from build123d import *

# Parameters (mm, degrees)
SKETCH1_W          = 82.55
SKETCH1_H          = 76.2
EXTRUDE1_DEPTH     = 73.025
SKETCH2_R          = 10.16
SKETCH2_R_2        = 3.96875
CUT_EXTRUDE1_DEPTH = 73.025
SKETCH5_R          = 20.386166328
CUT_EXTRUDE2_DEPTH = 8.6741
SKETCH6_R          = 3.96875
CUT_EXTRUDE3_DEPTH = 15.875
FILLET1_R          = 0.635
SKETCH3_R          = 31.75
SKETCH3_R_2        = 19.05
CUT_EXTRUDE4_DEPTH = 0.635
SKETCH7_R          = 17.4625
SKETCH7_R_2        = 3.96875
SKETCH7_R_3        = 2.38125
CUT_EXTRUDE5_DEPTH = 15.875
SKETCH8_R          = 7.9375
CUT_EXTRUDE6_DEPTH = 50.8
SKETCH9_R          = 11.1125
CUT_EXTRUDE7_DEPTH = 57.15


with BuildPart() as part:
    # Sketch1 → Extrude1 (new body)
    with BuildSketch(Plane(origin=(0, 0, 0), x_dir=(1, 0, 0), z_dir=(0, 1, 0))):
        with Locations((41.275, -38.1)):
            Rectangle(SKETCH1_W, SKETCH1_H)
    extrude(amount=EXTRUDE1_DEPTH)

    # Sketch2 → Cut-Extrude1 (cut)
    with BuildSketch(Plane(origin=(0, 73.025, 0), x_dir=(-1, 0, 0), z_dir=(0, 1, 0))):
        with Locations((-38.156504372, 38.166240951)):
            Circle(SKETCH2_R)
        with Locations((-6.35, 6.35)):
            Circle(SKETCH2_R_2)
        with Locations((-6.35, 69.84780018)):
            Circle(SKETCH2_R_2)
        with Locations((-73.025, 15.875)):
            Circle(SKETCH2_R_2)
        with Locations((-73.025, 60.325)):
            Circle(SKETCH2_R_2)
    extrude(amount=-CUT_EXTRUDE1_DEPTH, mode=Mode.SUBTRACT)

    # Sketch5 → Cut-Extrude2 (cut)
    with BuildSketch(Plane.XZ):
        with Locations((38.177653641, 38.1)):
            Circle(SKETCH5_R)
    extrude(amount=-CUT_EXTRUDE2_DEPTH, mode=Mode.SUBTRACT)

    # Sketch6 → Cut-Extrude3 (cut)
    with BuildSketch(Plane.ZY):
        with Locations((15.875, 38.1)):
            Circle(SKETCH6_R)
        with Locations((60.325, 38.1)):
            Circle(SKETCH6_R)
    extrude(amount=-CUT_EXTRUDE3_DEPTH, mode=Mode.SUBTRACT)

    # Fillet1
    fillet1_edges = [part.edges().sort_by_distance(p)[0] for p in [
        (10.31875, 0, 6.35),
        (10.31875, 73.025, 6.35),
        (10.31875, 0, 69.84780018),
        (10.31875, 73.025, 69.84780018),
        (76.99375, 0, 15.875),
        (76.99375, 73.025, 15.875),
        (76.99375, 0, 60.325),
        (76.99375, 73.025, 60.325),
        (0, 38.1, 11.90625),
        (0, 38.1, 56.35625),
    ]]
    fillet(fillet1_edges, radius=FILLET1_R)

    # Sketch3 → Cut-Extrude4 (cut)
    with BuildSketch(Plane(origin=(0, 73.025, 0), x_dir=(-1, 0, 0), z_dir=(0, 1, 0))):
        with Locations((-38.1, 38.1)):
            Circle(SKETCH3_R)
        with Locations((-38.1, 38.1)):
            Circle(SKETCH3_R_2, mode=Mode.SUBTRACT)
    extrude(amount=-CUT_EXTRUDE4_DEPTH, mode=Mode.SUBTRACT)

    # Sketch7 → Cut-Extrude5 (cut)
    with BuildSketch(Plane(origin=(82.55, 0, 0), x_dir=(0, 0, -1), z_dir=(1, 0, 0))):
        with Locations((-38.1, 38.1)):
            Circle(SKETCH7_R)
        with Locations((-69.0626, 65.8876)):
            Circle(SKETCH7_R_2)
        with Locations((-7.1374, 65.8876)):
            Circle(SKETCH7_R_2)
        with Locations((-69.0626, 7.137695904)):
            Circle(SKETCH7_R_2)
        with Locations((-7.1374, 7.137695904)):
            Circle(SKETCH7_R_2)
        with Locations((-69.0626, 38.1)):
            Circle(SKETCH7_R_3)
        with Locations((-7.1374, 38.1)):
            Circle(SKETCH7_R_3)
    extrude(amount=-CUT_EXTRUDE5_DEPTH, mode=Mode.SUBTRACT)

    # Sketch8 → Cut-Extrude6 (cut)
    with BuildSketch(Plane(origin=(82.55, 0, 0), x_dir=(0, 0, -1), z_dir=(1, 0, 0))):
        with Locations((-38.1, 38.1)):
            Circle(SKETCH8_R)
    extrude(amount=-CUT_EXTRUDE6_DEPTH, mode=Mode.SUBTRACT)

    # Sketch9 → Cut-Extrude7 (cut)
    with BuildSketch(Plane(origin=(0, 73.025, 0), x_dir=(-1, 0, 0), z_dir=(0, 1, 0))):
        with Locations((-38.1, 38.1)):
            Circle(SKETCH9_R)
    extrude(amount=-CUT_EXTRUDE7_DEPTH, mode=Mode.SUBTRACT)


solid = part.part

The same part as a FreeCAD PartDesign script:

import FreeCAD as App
import Part
import Sketcher
from FreeCAD import Vector
Q = App.Units.Quantity


def edges_at(feature, points):
    """Names of the edges that pass closest to the given points."""
    edges = feature.Shape.Edges
    near = lambda p: min(range(len(edges)), key=lambda i: edges[i].distToShape(Part.Vertex(*p))[0])
    return sorted({f"Edge{near(p) + 1}" for p in points})

doc = App.newDocument("Part")
body = doc.addObject("PartDesign::Body", "Body")

sketch1 = body.newObject("Sketcher::SketchObject", "Sketch")
sketch1.AttachmentSupport = (doc.getObject("XZ_Plane"), [""])
sketch1.MapMode = "FlatFace"
sketch1.addGeometry([
    Part.LineSegment(Vector(0, 0, 0), Vector(0, 76.2, 0)),
    Part.LineSegment(Vector(0, 76.2, 0), Vector(82.55, 76.2, 0)),
    Part.LineSegment(Vector(82.55, 76.2, 0), Vector(82.55, 0, 0)),
    Part.LineSegment(Vector(82.55, 0, 0), Vector(0, 0, 0)),
], False)
sketch1.addConstraint([
    Sketcher.Constraint("Coincident", 0, 2, 1, 1),
    Sketcher.Constraint("Coincident", 1, 2, 2, 1),
    Sketcher.Constraint("Coincident", 2, 2, 3, 1),
    Sketcher.Constraint("Coincident", 3, 2, 0, 1),
    Sketcher.Constraint("Vertical", 0),
    Sketcher.Constraint("Horizontal", 1),
    Sketcher.Constraint("Vertical", 2),
    Sketcher.Constraint("Horizontal", 3),
    Sketcher.Constraint("Coincident", 3, 2, -1, 1),
    Sketcher.Constraint("DistanceY", 0, 1, 0, 2, Q("3 in")),
    Sketcher.Constraint("DistanceX", 1, 1, 1, 2, Q("3.25 in")),
])
pad1 = body.newObject("PartDesign::Pad", "Pad")
pad1.Profile = sketch1
pad1.Length = Q("2.875 in")
pad1.Reversed = True

sketch2 = body.newObject("Sketcher::SketchObject", "Sketch001")
sketch2.AttachmentSupport = (doc.getObject("XZ_Plane"), [""])
sketch2.MapMode = "FlatFace"
sketch2.AttachmentOffset = App.Placement(Vector(0, 0, -2.875 * 25.4), App.Rotation())
sketch2.addGeometry([
    Part.Circle(Vector(38.156504, 38.166241, 0), Vector(0, 0, 1), 10.16),
    Part.Circle(Vector(6.35, 6.35, 0), Vector(0, 0, 1), 3.96875),
    Part.Circle(Vector(6.35, 69.8478, 0), Vector(0, 0, 1), 3.96875),
    Part.Circle(Vector(73.025, 15.875, 0), Vector(0, 0, 1), 3.96875),
    Part.Circle(Vector(73.025, 60.325, 0), Vector(0, 0, 1), 3.96875),
], False)
sketch2.addConstraint([
    Sketcher.Constraint("Equal", 1, 2),
    Sketcher.Constraint("Equal", 2, 3),
    Sketcher.Constraint("Equal", 3, 4),
    Sketcher.Constraint("Vertical", 1, 3, 2, 3),
    Sketcher.Constraint("Vertical", 3, 3, 4, 3),
    Sketcher.Constraint("Diameter", 0, Q("0.8 in")),
    Sketcher.Constraint("Diameter", 1, Q("0.3125 in")),
    Sketcher.Constraint("DistanceX", -1, 1, 1, 3, Q("0.25 in")),
    Sketcher.Constraint("DistanceY", -1, 1, 1, 3, Q("0.25 in")),
    Sketcher.Constraint("DistanceY", 3, 3, 4, 3, Q("1.75 in")),
    Sketcher.Constraint("DistanceX", -1, 1, 3, 3, Q("2.875 in")),
    Sketcher.Constraint("DistanceY", -1, 1, 3, 3, Q("0.625 in")),
    Sketcher.Constraint("DistanceY", -1, 1, 2, 3, 69.8478),
    Sketcher.Constraint("DistanceY", -1, 1, 0, 3, 38.166241),
    Sketcher.Constraint("DistanceX", -1, 1, 0, 3, 38.156504),
])
pocket1 = body.newObject("PartDesign::Pocket", "Pocket")
pocket1.Profile = sketch2
pocket1.Length = Q("2.875 in")
pocket1.Reversed = True

sketch3 = body.newObject("Sketcher::SketchObject", "Sketch002")
sketch3.AttachmentSupport = (doc.getObject("XZ_Plane"), [""])
sketch3.MapMode = "FlatFace"
sketch3.addGeometry(Part.Circle(Vector(38.177654, 38.1, 0), Vector(0, 0, 1), 20.386166), False)
sketch3.addConstraint([
    Sketcher.Constraint("DistanceY", -1, 1, 0, 3, Q("1.5 in")),
    Sketcher.Constraint("Diameter", 0, 40.772333),
    Sketcher.Constraint("DistanceX", -1, 1, 0, 3, 38.177654),
])
pocket2 = body.newObject("PartDesign::Pocket", "Pocket001")
pocket2.Profile = sketch3
pocket2.Length = Q("0.3415 in")

sketch4 = body.newObject("Sketcher::SketchObject", "Sketch003")
sketch4.AttachmentSupport = (doc.getObject("YZ_Plane"), [""])
sketch4.MapMode = "FlatFace"
sketch4.addGeometry([
    Part.Circle(Vector(38.1, 15.875, 0), Vector(0, 0, 1), 3.96875),
    Part.Circle(Vector(38.1, 60.325, 0), Vector(0, 0, 1), 3.96875),
], False)
sketch4.addConstraint([
    Sketcher.Constraint("Equal", 0, 1),
    Sketcher.Constraint("Vertical", 0, 3, 1, 3),
    Sketcher.Constraint("Diameter", 0, Q("0.3125 in")),
    Sketcher.Constraint("DistanceX", -1, 1, 0, 3, Q("1.5 in")),
    Sketcher.Constraint("DistanceY", 0, 3, 1, 3, Q("1.75 in")),
    Sketcher.Constraint("DistanceY", -1, 1, 0, 3, Q("0.625 in")),
])
pocket3 = body.newObject("PartDesign::Pocket", "Pocket002")
pocket3.Profile = sketch4
pocket3.Length = Q("0.625 in")
pocket3.Reversed = True
doc.recompute()

fillet = body.newObject("PartDesign::Fillet", "Fillet")
fillet.Base = (pocket3, edges_at(pocket3, [
    (10.319, 0, 6.35),
    (10.319, 73.025, 6.35),
    (10.319, 0, 69.848),
    (10.319, 73.025, 69.848),
    (76.994, 0, 15.875),
    (76.994, 73.025, 15.875),
    (76.994, 0, 60.325),
    (76.994, 73.025, 60.325),
    (0, 38.1, 11.906),
    (0, 38.1, 56.356),
]))
fillet.Radius = Q("0.025 in")

sketch5 = body.newObject("Sketcher::SketchObject", "Sketch004")
sketch5.AttachmentSupport = (doc.getObject("XZ_Plane"), [""])
sketch5.MapMode = "FlatFace"
sketch5.AttachmentOffset = App.Placement(Vector(0, 0, -2.875 * 25.4), App.Rotation())
sketch5.addGeometry([
    Part.Circle(Vector(38.1, 38.1, 0), Vector(0, 0, 1), 31.75),
    Part.Circle(Vector(38.1, 38.1, 0), Vector(0, 0, 1), 19.05),
], False)
sketch5.addConstraint([
    Sketcher.Constraint("Coincident", 1, 3, 0, 3),
    Sketcher.Constraint("Diameter", 0, Q("2.5 in")),
    Sketcher.Constraint("Diameter", 1, Q("1.5 in")),
    Sketcher.Constraint("DistanceX", -1, 1, 0, 3, Q("1.5 in")),
    Sketcher.Constraint("DistanceY", -1, 1, 0, 3, Q("1.5 in")),
])
pocket4 = body.newObject("PartDesign::Pocket", "Pocket003")
pocket4.Profile = sketch5
pocket4.Length = Q("0.025 in")
pocket4.Reversed = True

sketch6 = body.newObject("Sketcher::SketchObject", "Sketch005")
sketch6.AttachmentSupport = (doc.getObject("YZ_Plane"), [""])
sketch6.MapMode = "FlatFace"
sketch6.AttachmentOffset = App.Placement(Vector(0, 0, 3.25 * 25.4), App.Rotation())
sketch6.addGeometry([
    Part.Circle(Vector(38.1, 38.1, 0), Vector(0, 0, 1), 17.4625),
    Part.Circle(Vector(65.8876, 69.0626, 0), Vector(0, 0, 1), 3.96875),
    Part.Circle(Vector(65.8876, 7.1374, 0), Vector(0, 0, 1), 3.96875),
    Part.Circle(Vector(7.137696, 69.0626, 0), Vector(0, 0, 1), 3.96875),
    Part.Circle(Vector(7.137696, 7.1374, 0), Vector(0, 0, 1), 3.96875),
    Part.Circle(Vector(38.1, 69.0626, 0), Vector(0, 0, 1), 2.38125),
    Part.Circle(Vector(38.1, 7.1374, 0), Vector(0, 0, 1), 2.38125),
], False)
sketch6.addConstraint([
    Sketcher.Constraint("Equal", 1, 2),
    Sketcher.Constraint("Equal", 2, 3),
    Sketcher.Constraint("Equal", 3, 4),
    Sketcher.Constraint("Equal", 5, 6),
    Sketcher.Constraint("Horizontal", 1, 3, 3, 3),
    Sketcher.Constraint("Horizontal", 2, 3, 4, 3),
    Sketcher.Constraint("Horizontal", 3, 3, 5, 3),
    Sketcher.Constraint("Horizontal", 4, 3, 6, 3),
    Sketcher.Constraint("Vertical", 1, 3, 2, 3),
    Sketcher.Constraint("Vertical", 3, 3, 4, 3),
    Sketcher.Constraint("Vertical", 0, 3, 5, 3),
    Sketcher.Constraint("Vertical", 5, 3, 6, 3),
    Sketcher.Constraint("Diameter", 0, Q("1.375 in")),
    Sketcher.Constraint("Diameter", 1, Q("0.3125 in")),
    Sketcher.Constraint("Diameter", 5, Q("0.1875 in")),
    Sketcher.Constraint("DistanceX", -1, 1, 0, 3, Q("1.5 in")),
    Sketcher.Constraint("DistanceY", -1, 1, 0, 3, Q("1.5 in")),
    Sketcher.Constraint("DistanceX", -1, 1, 1, 3, Q("2.594 in")),
    Sketcher.Constraint("DistanceY", -1, 1, 1, 3, Q("2.719 in")),
    Sketcher.Constraint("DistanceY", -1, 1, 2, 3, Q("0.281 in")),
    Sketcher.Constraint("DistanceX", -1, 1, 3, 3, 7.137696),
])
pocket5 = body.newObject("PartDesign::Pocket", "Pocket004")
pocket5.Profile = sketch6
pocket5.Length = Q("0.625 in")

sketch7 = body.newObject("Sketcher::SketchObject", "Sketch006")
sketch7.AttachmentSupport = (doc.getObject("YZ_Plane"), [""])
sketch7.MapMode = "FlatFace"
sketch7.AttachmentOffset = App.Placement(Vector(0, 0, 3.25 * 25.4), App.Rotation())
sketch7.addGeometry(Part.Circle(Vector(38.1, 38.1, 0), Vector(0, 0, 1), 7.9375), False)
sketch7.addConstraint([
    Sketcher.Constraint("Diameter", 0, Q("0.625 in")),
    Sketcher.Constraint("DistanceX", -1, 1, 0, 3, Q("1.5 in")),
    Sketcher.Constraint("DistanceY", -1, 1, 0, 3, Q("1.5 in")),
])
pocket6 = body.newObject("PartDesign::Pocket", "Pocket005")
pocket6.Profile = sketch7
pocket6.Length = Q("2 in")

sketch8 = body.newObject("Sketcher::SketchObject", "Sketch007")
sketch8.AttachmentSupport = (doc.getObject("XZ_Plane"), [""])
sketch8.MapMode = "FlatFace"
sketch8.AttachmentOffset = App.Placement(Vector(0, 0, -2.875 * 25.4), App.Rotation())
sketch8.addGeometry(Part.Circle(Vector(38.1, 38.1, 0), Vector(0, 0, 1), 11.1125), False)
sketch8.addConstraint([
    Sketcher.Constraint("Diameter", 0, Q("0.875 in")),
    Sketcher.Constraint("DistanceX", -1, 1, 0, 3, Q("1.5 in")),
    Sketcher.Constraint("DistanceY", -1, 1, 0, 3, Q("1.5 in")),
])
pocket7 = body.newObject("PartDesign::Pocket", "Pocket006")
pocket7.Profile = sketch8
pocket7.Length = Q("2.25 in")
pocket7.Reversed = True

doc.recompute()
